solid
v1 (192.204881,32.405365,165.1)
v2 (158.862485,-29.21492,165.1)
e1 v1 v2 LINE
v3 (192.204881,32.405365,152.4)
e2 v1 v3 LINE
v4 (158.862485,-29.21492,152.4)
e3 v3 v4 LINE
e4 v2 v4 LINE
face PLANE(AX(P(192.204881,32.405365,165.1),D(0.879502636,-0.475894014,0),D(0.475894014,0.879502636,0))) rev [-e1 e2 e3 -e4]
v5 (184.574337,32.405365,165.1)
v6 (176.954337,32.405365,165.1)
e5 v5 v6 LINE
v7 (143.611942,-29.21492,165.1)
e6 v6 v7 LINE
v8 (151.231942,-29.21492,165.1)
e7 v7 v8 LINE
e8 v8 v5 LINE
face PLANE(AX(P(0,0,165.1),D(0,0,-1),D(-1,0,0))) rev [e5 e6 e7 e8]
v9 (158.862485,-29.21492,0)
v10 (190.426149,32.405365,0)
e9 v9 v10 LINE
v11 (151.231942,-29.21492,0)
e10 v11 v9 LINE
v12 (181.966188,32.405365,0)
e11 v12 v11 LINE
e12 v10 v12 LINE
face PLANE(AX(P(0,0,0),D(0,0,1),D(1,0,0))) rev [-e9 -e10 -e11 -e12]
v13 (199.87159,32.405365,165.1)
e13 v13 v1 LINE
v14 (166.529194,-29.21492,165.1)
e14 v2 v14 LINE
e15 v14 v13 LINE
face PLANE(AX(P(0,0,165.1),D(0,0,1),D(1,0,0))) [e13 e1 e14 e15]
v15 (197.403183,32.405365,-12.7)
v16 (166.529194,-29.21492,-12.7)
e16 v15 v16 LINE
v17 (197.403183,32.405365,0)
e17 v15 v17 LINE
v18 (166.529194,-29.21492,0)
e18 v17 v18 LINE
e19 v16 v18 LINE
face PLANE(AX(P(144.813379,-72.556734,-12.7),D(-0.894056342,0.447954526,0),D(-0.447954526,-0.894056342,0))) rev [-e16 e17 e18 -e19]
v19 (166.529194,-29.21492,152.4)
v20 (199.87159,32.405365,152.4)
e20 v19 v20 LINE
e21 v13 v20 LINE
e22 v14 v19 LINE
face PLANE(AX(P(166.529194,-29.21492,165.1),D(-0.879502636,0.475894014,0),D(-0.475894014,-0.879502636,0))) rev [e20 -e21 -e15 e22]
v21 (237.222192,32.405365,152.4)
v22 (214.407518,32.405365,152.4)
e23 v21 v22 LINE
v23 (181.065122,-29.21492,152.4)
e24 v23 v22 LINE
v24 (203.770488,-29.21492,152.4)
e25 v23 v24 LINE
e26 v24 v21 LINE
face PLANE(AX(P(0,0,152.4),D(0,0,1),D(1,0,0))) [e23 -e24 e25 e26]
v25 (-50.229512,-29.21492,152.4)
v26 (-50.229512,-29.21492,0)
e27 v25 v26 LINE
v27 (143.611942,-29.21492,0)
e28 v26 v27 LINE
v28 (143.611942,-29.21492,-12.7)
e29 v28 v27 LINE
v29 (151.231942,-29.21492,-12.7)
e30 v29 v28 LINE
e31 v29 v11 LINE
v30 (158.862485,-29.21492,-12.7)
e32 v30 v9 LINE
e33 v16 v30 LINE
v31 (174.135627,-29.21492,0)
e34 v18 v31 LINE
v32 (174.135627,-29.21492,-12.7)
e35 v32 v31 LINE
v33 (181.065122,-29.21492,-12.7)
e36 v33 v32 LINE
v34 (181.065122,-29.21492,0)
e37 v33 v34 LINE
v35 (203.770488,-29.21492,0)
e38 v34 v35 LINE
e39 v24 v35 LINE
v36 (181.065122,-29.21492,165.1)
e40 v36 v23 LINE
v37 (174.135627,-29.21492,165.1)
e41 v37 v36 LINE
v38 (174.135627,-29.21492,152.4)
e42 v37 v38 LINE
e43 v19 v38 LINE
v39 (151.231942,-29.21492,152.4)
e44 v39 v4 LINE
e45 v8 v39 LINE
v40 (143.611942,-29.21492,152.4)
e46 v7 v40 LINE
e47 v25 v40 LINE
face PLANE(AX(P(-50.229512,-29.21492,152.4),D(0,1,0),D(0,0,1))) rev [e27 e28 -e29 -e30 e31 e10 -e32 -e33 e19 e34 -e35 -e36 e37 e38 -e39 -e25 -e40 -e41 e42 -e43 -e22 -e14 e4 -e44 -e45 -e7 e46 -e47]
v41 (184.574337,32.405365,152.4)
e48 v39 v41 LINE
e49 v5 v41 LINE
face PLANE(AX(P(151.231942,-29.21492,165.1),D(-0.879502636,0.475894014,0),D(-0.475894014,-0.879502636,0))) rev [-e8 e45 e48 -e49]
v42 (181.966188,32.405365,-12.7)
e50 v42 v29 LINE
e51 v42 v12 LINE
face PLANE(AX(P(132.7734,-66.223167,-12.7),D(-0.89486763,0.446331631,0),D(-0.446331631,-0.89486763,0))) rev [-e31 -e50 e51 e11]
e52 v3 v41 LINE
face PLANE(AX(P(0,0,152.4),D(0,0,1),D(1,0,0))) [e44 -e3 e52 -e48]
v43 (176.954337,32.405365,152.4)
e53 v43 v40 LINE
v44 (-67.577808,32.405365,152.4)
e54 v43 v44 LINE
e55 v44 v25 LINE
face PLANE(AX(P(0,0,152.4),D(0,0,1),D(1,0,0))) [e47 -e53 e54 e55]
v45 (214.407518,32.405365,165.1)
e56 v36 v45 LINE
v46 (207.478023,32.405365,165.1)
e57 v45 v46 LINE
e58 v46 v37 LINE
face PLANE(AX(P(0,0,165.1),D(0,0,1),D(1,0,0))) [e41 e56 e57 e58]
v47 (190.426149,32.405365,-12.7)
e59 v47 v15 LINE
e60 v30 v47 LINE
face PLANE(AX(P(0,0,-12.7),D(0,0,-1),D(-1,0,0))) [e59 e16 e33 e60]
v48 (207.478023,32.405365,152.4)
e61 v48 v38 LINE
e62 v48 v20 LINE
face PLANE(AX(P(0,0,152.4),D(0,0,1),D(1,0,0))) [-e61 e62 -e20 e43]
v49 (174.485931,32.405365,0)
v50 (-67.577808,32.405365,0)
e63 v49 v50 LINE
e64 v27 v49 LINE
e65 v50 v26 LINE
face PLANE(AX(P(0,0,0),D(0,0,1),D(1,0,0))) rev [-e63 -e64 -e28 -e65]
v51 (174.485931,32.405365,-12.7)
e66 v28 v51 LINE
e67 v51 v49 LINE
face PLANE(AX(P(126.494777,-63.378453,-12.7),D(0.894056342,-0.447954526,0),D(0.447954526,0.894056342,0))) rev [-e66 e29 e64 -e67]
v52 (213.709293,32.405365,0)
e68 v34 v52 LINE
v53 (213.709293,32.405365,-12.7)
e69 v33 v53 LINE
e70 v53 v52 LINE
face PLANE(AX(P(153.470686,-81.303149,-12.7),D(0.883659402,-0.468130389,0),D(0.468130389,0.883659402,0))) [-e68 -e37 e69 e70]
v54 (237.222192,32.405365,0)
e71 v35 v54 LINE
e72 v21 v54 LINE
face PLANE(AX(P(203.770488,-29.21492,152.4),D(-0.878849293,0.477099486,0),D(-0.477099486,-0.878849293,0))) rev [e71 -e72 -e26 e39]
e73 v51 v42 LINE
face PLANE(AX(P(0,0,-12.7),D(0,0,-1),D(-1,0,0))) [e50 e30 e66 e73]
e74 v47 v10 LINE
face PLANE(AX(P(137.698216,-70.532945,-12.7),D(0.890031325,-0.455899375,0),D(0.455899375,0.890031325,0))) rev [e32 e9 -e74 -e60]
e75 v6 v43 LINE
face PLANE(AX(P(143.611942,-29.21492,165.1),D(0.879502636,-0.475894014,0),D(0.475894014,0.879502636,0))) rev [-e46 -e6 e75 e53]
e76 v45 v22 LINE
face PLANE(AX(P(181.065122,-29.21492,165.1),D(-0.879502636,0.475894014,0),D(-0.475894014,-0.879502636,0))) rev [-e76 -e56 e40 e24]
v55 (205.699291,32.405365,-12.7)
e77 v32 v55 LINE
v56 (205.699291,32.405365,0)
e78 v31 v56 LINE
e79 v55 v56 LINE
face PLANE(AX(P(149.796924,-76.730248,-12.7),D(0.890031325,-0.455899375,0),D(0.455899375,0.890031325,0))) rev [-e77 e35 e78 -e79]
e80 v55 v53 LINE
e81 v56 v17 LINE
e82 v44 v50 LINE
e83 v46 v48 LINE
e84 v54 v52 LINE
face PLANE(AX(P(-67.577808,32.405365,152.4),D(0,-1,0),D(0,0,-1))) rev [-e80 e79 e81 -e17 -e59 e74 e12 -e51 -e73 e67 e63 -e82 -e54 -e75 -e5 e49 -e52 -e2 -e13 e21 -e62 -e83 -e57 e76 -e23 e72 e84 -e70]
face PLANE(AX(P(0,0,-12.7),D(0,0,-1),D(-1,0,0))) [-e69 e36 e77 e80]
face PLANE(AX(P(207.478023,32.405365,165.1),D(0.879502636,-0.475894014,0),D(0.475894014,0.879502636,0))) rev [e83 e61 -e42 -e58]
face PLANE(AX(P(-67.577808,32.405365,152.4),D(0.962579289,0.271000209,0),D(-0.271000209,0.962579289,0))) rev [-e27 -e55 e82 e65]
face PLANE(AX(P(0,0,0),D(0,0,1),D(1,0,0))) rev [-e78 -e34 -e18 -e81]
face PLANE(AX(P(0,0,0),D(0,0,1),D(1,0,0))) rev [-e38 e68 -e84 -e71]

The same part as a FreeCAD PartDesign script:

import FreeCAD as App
import Part
import Sketcher
from FreeCAD import Vector
Q = App.Units.Quantity


def add_polygon(sketch, points):
    """Adds a closed chain of lines whose ends are joined by coincident constraints."""
    first, n = sketch.GeometryCount, len(points)
    for a, b in zip(points, points[1:] + points[:1]):
        sketch.addGeometry(Part.LineSegment(App.Vector(*a, 0), App.Vector(*b, 0)), False)
    for i in range(n):
        sketch.addConstraint(Sketcher.Constraint("Coincident", first + i, 2, first + (i + 1) % n, 1))

doc = App.newDocument("Part")
params = doc.addObject("Spreadsheet::Sheet", "Params")
for row, (alias, value) in enumerate([
    ("sketch1_width", "12 in"),
    ("sketch1_width2", "10 in"),
    ("pad1_length", "6 in"),
    ("sketch2_width", "0.3 in"),
    ("pad2_length", "0.5 in"),
    ("sketch3_width", "0.3 in"),
    ("pad3_length", "0.5 in"),
], start=1):
    params.set(f"A{row}", alias)
    params.set(f"B{row}", "=" + value)
    params.setAlias(f"B{row}", alias)

body = doc.addObject("PartDesign::Body", "Body")

sketch1 = doc.addObject("Sketcher::SketchObject", "Sketch")
body.addObject(sketch1)
sketch1.AttachmentSupport = (doc.XY_Plane, [""])
sketch1.MapMode = "FlatFace"
add_polygon(sketch1, [(237.222192, 32.405365), (-67.577808, 32.405365), (-50.229512, -29.21492), (203.770488, -29.21492)])
sketch1.addConstraint([
    Sketcher.Constraint("Horizontal", 0),
    Sketcher.Constraint("Horizontal", 2),
    Sketcher.Constraint("DistanceX", 0, 2, 0, 1, Q("12 in")),
    Sketcher.Constraint("DistanceX", 2, 1, 2, 2, Q("10 in")),
    Sketcher.Constraint("DistanceX", 0, 2, -1, 1, Q("67.577808 mm")),
    Sketcher.Constraint("DistanceY", 1, 2, -1, 1, Q("29.21492 mm")),
    Sketcher.Constraint("Distance", 1, Q("64.015802 mm")),
    Sketcher.Constraint("Distance", 3, Q("70.114735 mm")),
])
sketch1.setExpression("Constraints[6]", "Params.sketch1_width")
sketch1.setExpression("Constraints[7]", "Params.sketch1_width2")
pad1 = doc.addObject("PartDesign::Pad", "Pad")
body.addObject(pad1)
pad1.Profile = sketch1
pad1.setExpression("Length", "Params.pad1_length")

sketch2 = doc.addObject("Sketcher::SketchObject", "Sketch001")
body.addObject(sketch2)
sketch2.AttachmentSupport = (doc.XY_Plane, [""])
sketch2.MapMode = "FlatFace"
sketch2.AttachmentOffset = App.Placement(Vector(0, 0, 6 * 25.4), App.Rotation())
add_polygon(sketch2, [(181.065122, -29.21492), (214.407518, 32.405365), (207.478023, 32.405365), (174.135627, -29.21492)])
add_polygon(sketch2, [(166.529194, -29.21492), (199.87159, 32.405365), (192.204881, 32.405365), (158.862485, -29.21492)])
add_polygon(sketch2, [(151.231942, -29.21492), (184.574337, 32.405365), (176.954337, 32.405365), (143.611942, -29.21492)])
sketch2.addConstraint([
    Sketcher.Constraint("Horizontal", 1),
    Sketcher.Constraint("Horizontal", 3),
    Sketcher.Constraint("Horizontal", 5),
    Sketcher.Constraint("Horizontal", 7),
    Sketcher.Constraint("Horizontal", 9),
    Sketcher.Constraint("Horizontal", 11),
    Sketcher.Constraint("Parallel", 0, 2),
    Sketcher.Constraint("Parallel", 2, 4),
    Sketcher.Constraint("Parallel", 4, 6),
    Sketcher.Constraint("Parallel", 6, 8),
    Sketcher.Constraint("Parallel", 8, 10),
    Sketcher.Constraint("Horizontal", 1, 2, 4, 2),
    Sketcher.Constraint("Horizontal", 3, 2, 6, 2),
    Sketcher.Constraint("Horizontal", 5, 2, 8, 2),
    Sketcher.Constraint("Horizontal", 7, 2, 10, 2),
    Sketcher.Constraint("DistanceX", 9, 2, 9, 1, Q("0.3 in")),
    Sketcher.Constraint("DistanceX", 5, 2, 5, 1, Q("7.666709 mm")),
    Sketcher.Constraint("DistanceX", 3, 2, 1, 2, Q("26.4129 mm")),
    Sketcher.Constraint("Distance", 0, Q("70.06265 mm")),
    Sketcher.Constraint("DistanceX", 1, 2, 1, 1, Q("6.929495 mm")),
    Sketcher.Constraint("DistanceY", 2, 2, -1, 1, Q("29.21492 mm")),
    Sketcher.Constraint("DistanceX", -1, 1, 4, 2, Q("199.87159 mm")),
    Sketcher.Constraint("DistanceX", -1, 1, 10, 2, Q("143.611942 mm")),
    Sketcher.Constraint("DistanceX", 4, 2, 0, 2, Q("14.535928 mm")),
])
sketch2.setExpression("Constraints[27]", "Params.sketch2_width")
pad2 = doc.addObject("PartDesign::Pad", "Pad001")
body.addObject(pad2)
pad2.Profile = sketch2
pad2.setExpression("Length", "Params.pad2_length")

sketch3 = doc.addObject("Sketcher::SketchObject", "Sketch002")
body.addObject(sketch3)
sketch3.AttachmentSupport = (doc.XY_Plane, [""])
sketch3.MapMode = "FlatFace"
add_polygon(sketch3, [(181.966188, 32.405365), (151.231942, -29.21492), (143.611942, -29.21492), (174.485931, 32.405365)])
add_polygon(sketch3, [(197.403183, 32.405365), (166.529194, -29.21492), (158.862485, -29.21492), (190.426149, 32.405365)])
add_polygon(sketch3, [(213.709293, 32.405365), (181.065122, -29.21492), (174.135627, -29.21492), (205.699291, 32.405365)])
sketch3.addConstraint([
    Sketcher.Constraint("Horizontal", 1),
    Sketcher.Constraint("Horizontal", 3),
    Sketcher.Constraint("Horizontal", 5),
    Sketcher.Constraint("Horizontal", 7),
    Sketcher.Constraint("Horizontal", 9),
    Sketcher.Constraint("Horizontal", 11),
    Sketcher.Constraint("Parallel", 2, 4),
    Sketcher.Constraint("Parallel", 6, 10),
    Sketcher.Constraint("Horizontal", 1, 2, 4, 2),
    Sketcher.Constraint("Horizontal", 3, 2, 6, 2),
    Sketcher.Constraint("Horizontal", 5, 2, 8, 2),
    Sketcher.Constraint("Horizontal", 7, 2, 10, 2),
    Sketcher.Constraint("DistanceX", 1, 2, 1, 1, Q("0.3 in")),
    Sketcher.Constraint("DistanceX", 5, 2, 5, 1, Q("7.666709 mm")),
    Sketcher.Constraint("DistanceX", 5, 2, 7, 2, Q("38.540698 mm")),
    Sketcher.Constraint("Distance", 2, Q("68.92215 mm")),
    Sketcher.Constraint("Distance", 6, Q("69.233839 mm")),
    Sketcher.Constraint("DistanceX", 3, 1, 3, 2, Q("7.480258 mm")),
    Sketcher.Constraint("DistanceX", 9, 2, 9, 1, Q("6.929495 mm")),
    Sketcher.Constraint("DistanceX", 11, 1, 11, 2, Q("8.010002 mm")),
    Sketcher.Constraint("DistanceX", -1, 1, 0, 2, Q("151.231942 mm")),
    Sketcher.Constraint("DistanceY", 0, 2, -1, 1, Q("29.21492 mm")),
    Sketcher.Constraint("DistanceX", -1, 1, 6, 2, Q("190.426149 mm")),
    Sketcher.Constraint("DistanceX", -1, 1, 10, 2, Q("205.699291 mm")),
])
sketch3.setExpression("Constraints[24]", "Params.sketch3_width")
pad3 = doc.addObject("PartDesign::Pad", "Pad002")
body.addObject(pad3)
pad3.Profile = sketch3
pad3.setExpression("Length", "Params.pad3_length")
pad3.Reversed = True

doc.recompute()
